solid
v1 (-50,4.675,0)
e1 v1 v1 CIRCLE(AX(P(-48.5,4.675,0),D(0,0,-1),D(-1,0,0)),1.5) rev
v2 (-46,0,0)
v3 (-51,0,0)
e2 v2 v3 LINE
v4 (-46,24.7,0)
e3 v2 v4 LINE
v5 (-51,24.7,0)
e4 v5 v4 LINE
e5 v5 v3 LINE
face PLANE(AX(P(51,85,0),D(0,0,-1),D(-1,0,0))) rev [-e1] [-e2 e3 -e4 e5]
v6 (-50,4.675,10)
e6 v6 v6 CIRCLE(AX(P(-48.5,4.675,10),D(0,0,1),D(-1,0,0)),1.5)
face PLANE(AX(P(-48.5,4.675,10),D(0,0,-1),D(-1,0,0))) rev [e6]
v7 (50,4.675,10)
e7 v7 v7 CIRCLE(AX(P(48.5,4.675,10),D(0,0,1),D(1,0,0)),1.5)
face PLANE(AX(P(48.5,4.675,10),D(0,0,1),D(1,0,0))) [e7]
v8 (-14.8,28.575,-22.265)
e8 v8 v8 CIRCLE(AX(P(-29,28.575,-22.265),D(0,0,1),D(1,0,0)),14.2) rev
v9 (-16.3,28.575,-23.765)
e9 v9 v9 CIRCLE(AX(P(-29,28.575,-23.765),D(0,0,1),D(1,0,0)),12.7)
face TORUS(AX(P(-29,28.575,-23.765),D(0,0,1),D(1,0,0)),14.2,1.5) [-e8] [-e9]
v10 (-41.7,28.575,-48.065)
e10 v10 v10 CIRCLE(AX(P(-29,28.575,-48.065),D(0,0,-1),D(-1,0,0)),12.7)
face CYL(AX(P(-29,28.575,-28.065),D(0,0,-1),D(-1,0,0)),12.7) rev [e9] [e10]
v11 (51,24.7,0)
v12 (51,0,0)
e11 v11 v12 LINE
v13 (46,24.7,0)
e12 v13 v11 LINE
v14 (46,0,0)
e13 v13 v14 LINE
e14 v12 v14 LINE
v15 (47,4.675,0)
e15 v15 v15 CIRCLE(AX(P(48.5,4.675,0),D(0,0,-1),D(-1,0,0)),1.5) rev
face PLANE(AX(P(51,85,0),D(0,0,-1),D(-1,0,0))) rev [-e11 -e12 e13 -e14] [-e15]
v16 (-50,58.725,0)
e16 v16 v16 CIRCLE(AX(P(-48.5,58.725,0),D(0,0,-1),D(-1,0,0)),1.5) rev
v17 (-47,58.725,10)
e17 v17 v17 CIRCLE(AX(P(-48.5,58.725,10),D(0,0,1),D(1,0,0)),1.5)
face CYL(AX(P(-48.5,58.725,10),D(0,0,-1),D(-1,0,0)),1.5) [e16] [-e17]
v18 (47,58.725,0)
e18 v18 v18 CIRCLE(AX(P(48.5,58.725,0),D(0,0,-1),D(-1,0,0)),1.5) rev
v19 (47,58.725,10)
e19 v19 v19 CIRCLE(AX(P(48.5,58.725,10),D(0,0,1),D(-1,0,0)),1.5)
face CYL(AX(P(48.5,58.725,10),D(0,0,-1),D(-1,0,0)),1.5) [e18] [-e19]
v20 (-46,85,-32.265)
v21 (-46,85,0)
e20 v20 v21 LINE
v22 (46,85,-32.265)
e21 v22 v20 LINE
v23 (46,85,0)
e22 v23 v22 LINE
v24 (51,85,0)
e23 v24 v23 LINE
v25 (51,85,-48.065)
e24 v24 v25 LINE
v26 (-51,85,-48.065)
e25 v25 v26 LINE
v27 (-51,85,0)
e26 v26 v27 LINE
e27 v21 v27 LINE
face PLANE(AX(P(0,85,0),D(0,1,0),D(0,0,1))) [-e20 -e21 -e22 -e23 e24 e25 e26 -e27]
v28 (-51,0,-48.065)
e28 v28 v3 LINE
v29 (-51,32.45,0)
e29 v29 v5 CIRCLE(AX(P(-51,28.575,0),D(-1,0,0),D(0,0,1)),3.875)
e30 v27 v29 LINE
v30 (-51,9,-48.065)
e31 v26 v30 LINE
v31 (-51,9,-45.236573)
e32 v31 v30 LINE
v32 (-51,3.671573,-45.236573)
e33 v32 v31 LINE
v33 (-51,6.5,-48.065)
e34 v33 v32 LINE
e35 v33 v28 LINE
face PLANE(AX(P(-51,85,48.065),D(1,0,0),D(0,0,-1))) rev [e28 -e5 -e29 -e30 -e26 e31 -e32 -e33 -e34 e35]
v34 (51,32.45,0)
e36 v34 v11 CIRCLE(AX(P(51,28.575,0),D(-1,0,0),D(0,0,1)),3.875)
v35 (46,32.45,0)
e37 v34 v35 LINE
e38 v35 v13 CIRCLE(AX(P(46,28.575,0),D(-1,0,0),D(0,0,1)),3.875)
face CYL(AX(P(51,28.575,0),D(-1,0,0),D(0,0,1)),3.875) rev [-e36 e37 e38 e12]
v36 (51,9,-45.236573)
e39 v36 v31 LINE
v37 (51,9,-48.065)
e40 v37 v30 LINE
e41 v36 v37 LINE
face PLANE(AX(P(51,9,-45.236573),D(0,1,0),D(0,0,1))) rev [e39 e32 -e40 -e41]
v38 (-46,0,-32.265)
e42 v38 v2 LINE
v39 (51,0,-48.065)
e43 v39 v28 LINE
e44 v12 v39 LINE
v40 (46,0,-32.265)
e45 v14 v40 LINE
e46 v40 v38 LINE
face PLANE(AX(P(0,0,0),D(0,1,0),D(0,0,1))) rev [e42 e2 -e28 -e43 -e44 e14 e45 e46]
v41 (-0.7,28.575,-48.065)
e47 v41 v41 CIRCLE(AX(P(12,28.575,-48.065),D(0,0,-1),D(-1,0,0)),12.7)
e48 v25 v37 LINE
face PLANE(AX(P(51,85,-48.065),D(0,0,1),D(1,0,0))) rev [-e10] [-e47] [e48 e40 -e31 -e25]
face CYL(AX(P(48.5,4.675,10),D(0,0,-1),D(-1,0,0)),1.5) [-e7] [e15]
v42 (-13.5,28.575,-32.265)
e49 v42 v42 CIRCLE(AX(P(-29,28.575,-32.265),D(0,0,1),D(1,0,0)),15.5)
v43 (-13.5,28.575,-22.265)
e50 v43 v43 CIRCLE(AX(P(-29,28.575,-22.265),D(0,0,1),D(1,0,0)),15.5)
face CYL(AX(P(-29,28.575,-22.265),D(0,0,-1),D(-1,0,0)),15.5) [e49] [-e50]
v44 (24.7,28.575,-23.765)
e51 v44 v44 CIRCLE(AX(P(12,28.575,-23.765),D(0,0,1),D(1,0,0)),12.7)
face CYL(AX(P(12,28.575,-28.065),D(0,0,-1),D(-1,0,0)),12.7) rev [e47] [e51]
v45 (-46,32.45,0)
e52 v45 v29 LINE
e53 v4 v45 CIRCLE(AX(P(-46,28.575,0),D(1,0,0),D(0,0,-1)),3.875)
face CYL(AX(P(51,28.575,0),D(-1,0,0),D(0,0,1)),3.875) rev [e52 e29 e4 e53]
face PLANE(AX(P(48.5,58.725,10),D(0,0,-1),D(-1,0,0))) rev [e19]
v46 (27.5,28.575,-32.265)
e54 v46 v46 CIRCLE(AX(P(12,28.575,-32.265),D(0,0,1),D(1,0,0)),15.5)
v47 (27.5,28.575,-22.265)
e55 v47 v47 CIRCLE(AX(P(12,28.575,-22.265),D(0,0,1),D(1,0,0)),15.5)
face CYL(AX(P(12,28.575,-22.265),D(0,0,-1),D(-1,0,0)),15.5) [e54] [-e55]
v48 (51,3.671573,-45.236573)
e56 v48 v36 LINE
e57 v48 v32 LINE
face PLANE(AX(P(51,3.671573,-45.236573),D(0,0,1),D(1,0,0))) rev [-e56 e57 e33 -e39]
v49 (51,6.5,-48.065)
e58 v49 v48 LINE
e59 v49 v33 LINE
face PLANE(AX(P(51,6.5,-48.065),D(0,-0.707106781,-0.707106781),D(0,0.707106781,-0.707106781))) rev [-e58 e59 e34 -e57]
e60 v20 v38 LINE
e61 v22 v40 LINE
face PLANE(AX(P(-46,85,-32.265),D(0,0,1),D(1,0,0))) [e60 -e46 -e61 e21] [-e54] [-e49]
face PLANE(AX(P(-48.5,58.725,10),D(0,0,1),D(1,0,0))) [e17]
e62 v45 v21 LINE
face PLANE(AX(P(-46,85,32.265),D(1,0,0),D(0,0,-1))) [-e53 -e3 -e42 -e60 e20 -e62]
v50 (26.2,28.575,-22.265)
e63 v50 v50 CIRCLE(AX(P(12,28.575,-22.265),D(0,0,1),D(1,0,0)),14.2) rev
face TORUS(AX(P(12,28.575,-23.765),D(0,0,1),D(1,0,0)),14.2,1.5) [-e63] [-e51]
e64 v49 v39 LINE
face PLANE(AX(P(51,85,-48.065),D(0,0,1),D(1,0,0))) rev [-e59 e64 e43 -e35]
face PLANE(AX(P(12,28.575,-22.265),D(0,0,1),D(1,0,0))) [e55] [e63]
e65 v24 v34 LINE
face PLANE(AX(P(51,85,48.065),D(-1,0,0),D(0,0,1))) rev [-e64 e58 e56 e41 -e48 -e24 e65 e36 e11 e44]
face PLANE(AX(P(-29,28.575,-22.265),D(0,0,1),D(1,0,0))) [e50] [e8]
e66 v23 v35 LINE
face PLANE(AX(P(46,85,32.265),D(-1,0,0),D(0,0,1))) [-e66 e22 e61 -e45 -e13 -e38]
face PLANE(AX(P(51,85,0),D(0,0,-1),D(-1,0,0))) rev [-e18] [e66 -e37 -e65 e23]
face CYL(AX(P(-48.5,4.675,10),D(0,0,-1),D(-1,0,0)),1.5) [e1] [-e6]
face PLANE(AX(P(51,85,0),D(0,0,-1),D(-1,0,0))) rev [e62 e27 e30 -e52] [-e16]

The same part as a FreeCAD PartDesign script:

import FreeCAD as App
import Part
import Sketcher

V = App.Vector
Q = App.Units.Quantity


def edges_at(feature, points):
    """Names of the edges that pass closest to the given points."""
    edges = feature.Shape.Edges
    near = lambda p: min(range(len(edges)), key=lambda i: edges[i].distToShape(Part.Vertex(*p))[0])
    return sorted({f"Edge{near(p) + 1}" for p in points})


def add_polygon(sketch, points):
    """Adds a closed chain of lines whose ends are joined by coincident constraints."""
    first, n = sketch.GeometryCount, len(points)
    for a, b in zip(points, points[1:] + points[:1]):
        sketch.addGeometry(Part.LineSegment(App.Vector(*a, 0), App.Vector(*b, 0)), False)
    for i in range(n):
        sketch.addConstraint(Sketcher.Constraint("Coincident", first + i, 2, first + (i + 1) % n, 1))

doc = App.newDocument("Part")
params = doc.addObject("Spreadsheet::Sheet", "Params")
for row, (alias, value) in enumerate([
    ("sketch1_width", "102 mm"),
    ("sketch1_width2", "92 mm"),
    ("sketch1_height", "96.13 mm"),
    ("sketch1_height2", "64.53 mm"),
    ("pad1_length", "85 mm"),
    ("sketch2_diameter", "20.5 mm"),
    ("pocket1_length", "20 mm"),
    ("sketch3_diameter", "25.4 mm"),
    ("pocket2_length", "20 mm"),
    ("sketch4_diameter", "7.75 mm"),
    ("sketch5_width", "85 mm"),
    ("sketch6_diameter", "3 mm"),
    ("pad2_length", "10 mm"),
    ("sketch7_diameter", "31 mm"),
    ("sketch7_diameter2", "25.4 mm"),
    ("pad3_length", "10 mm"),
    ("fillet_radius", "1.5 mm"),
    ("sketch8_length", "4 mm"),
    ("sketch8_width", "2.5 mm"),
], start=1):
    params.set(f"A{row}", alias)
    params.set(f"B{row}", "=" + value)
    params.setAlias(f"B{row}", alias)

body = doc.addObject("PartDesign::Body", "Body")

# Sketch on XZ plane
sketch1 = doc.addObject("Sketcher::SketchObject", "Sketch")
body.addObject(sketch1)
sketch1.AttachmentSupport = (doc.XZ_Plane, [""])
sketch1.MapMode = "FlatFace"
add_polygon(sketch1, [(-51, -48.065), (-51, 48.065), (51, 48.065), (51, -48.065)])  # lines 0-3
add_polygon(sketch1, [(46, 32.265), (-46, 32.265), (-46, -32.265), (46, -32.265)])  # lines 4-7
sketch1.addConstraint(Sketcher.Constraint("Vertical", 0))
sketch1.addConstraint(Sketcher.Constraint("Horizontal", 1))
sketch1.addConstraint(Sketcher.Constraint("Vertical", 2))
sketch1.addConstraint(Sketcher.Constraint("Horizontal", 3))
sketch1.addConstraint(Sketcher.Constraint("Horizontal", 4))
sketch1.addConstraint(Sketcher.Constraint("Vertical", 5))
sketch1.addConstraint(Sketcher.Constraint("Horizontal", 6))
sketch1.addConstraint(Sketcher.Constraint("Vertical", 7))
sketch1.addConstraint(Sketcher.Constraint("Symmetric", 0, 2, 2, 2, -1, 1))
sketch1.addConstraint(Sketcher.Constraint("Symmetric", 4, 2, 6, 2, -1, 1))
sketch1.addConstraint(Sketcher.Constraint("DistanceX", 1, 1, 1, 2, 102.0))
sketch1.addConstraint(Sketcher.Constraint("DistanceX", 4, 2, 4, 1, 92.0))
sketch1.addConstraint(Sketcher.Constraint("DistanceY", 0, 1, 0, 2, 96.13))
sketch1.addConstraint(Sketcher.Constraint("DistanceY", 5, 2, 5, 1, 64.53))
sketch1.setExpression("Constraints[18]", "Params.sketch1_width")
sketch1.setExpression("Constraints[19]", "Params.sketch1_width2")
sketch1.setExpression("Constraints[20]", "Params.sketch1_height")
sketch1.setExpression("Constraints[21]", "Params.sketch1_height2")
pad1 = doc.addObject("PartDesign::Pad", "Pad")
body.addObject(pad1)
pad1.Profile = sketch1
pad1.setExpression("Length", "Params.pad1_length")
pad1.Reversed = True

# Sketch on XY plane
sketch2 = doc.addObject("Sketcher::SketchObject", "Sketch001")
body.addObject(sketch2)
sketch2.AttachmentSupport = (doc.XY_Plane, [""])
sketch2.MapMode = "FlatFace"
sketch2.AttachmentOffset = App.Placement(V(0, 0, 48.065), App.Rotation())
sketch2.addGeometry(Part.Circle(V(-31, 31.7, 0), V(0, 0, 1), 10.25), False)
sketch2.addGeometry(Part.Circle(V(29, 31.7, 0), V(0, 0, 1), 10.25), False)
sketch2.addConstraint(Sketcher.Constraint("Equal", 0, 1))
sketch2.addConstraint(Sketcher.Constraint("Horizontal", 0, 3, 1, 3))
sketch2.addConstraint(Sketcher.Constraint("Diameter", 0, 20.5))
sketch2.addConstraint(Sketcher.Constraint("DistanceX", 0, 3, -1, 1, 31.0))
sketch2.addConstraint(Sketcher.Constraint("DistanceX", -1, 1, 1, 3, 29.0))
sketch2.addConstraint(Sketcher.Constraint("DistanceY", -1, 1, 0, 3, 31.7))
sketch2.setExpression("Constraints[2]", "Params.sketch2_diameter")
pocket1 = doc.addObject("PartDesign::Pocket", "Pocket")
body.addObject(pocket1)
pocket1.Profile = sketch2
pocket1.setExpression("Length", "Params.pocket1_length")

# Sketch on XY plane
sketch3 = doc.addObject("Sketcher::SketchObject", "Sketch002")
body.addObject(sketch3)
sketch3.AttachmentSupport = (doc.XY_Plane, [""])
sketch3.MapMode = "FlatFace"
sketch3.AttachmentOffset = App.Placement(V(0, 0, -48.065), App.Rotation())
sketch3.addGeometry(Part.Circle(V(12, 28.575, 0), V(0, 0, 1), 12.7), False)
sketch3.addGeometry(Part.Circle(V(-29, 28.575, 0), V(0, 0, 1), 12.7), False)
sketch3.addConstraint(Sketcher.Constraint("Equal", 0, 1))
sketch3.addConstraint(Sketcher.Constraint("Horizontal", 0, 3, 1, 3))
sketch3.addConstraint(Sketcher.Constraint("Diameter", 0, 25.4))
sketch3.addConstraint(Sketcher.Constraint("DistanceX", -1, 1, 0, 3, 12.0))
sketch3.addConstraint(Sketcher.Constraint("DistanceX", 1, 3, -1, 1, 29.0))
sketch3.addConstraint(Sketcher.Constraint("DistanceY", -1, 1, 0, 3, 28.575))
sketch3.setExpression("Constraints[2]", "Params.sketch3_diameter")
pocket2 = doc.addObject("PartDesign::Pocket", "Pocket001")
body.addObject(pocket2)
pocket2.Profile = sketch3
pocket2.setExpression("Length", "Params.pocket2_length")
pocket2.Reversed = True

# Sketch on YZ plane
sketch4 = doc.addObject("Sketcher::SketchObject", "Sketch003")
body.addObject(sketch4)
sketch4.AttachmentSupport = (doc.YZ_Plane, [""])
sketch4.MapMode = "FlatFace"
sketch4.AttachmentOffset = App.Placement(V(0, 0, -51), App.Rotation())
sketch4.addGeometry(Part.Circle(V(28.575, 0, 0), V(0, 0, 1), 3.875), False)
sketch4.addConstraint(Sketcher.Constraint("PointOnObject", 0, 3, -1))
sketch4.addConstraint(Sketcher.Constraint("Diameter", 0, 7.75))
sketch4.addConstraint(Sketcher.Constraint("DistanceX", -1, 1, 0, 3, 28.575))
sketch4.setExpression("Constraints[1]", "Params.sketch4_diameter")
pocket3 = doc.addObject("PartDesign::Pocket", "Pocket002")
body.addObject(pocket3)
pocket3.Profile = sketch4
pocket3.Type = "ThroughAll"
pocket3.Reversed = True

# Sketch on YZ plane
sketch5 = doc.addObject("Sketcher::SketchObject", "Sketch004")
body.addObject(sketch5)
sketch5.AttachmentSupport = (doc.YZ_Plane, [""])
sketch5.MapMode = "FlatFace"
sketch5.AttachmentOffset = App.Placement(V(0, 0, -51), App.Rotation())
add_polygon(sketch5, [(85, 0), (0, 0), (0, 48.065), (85, 48.065)])  # lines 0-3
sketch5.addConstraint(Sketcher.Constraint("Horizontal", 0))
sketch5.addConstraint(Sketcher.Constraint("Vertical", 1))
sketch5.addConstraint(Sketcher.Constraint("Horizontal", 2))
sketch5.addConstraint(Sketcher.Constraint("Vertical", 3))
sketch5.addConstraint(Sketcher.Constraint("Coincident", 0, 2, -1, 1))
sketch5.addConstraint(Sketcher.Constraint("DistanceX", 0, 2, 0, 1, 85.0))
sketch5.addConstraint(Sketcher.Constraint("DistanceY", 1, 1, 1, 2, 48.065))
sketch5.setExpression("Constraints[9]", "Params.sketch5_width")
pocket4 = doc.addObject("PartDesign::Pocket", "Pocket003")
body.addObject(pocket4)
pocket4.Profile = sketch5
pocket4.Type = "ThroughAll"
pocket4.Reversed = True

# Sketch on XY plane
sketch6 = doc.addObject("Sketcher::SketchObject", "Sketch005")
body.addObject(sketch6)
sketch6.AttachmentSupport = (doc.XY_Plane, [""])
sketch6.MapMode = "FlatFace"
sketch6.addGeometry(Part.Circle(V(-48.5, 58.725, 0), V(0, 0, 1), 1.5), False)
sketch6.addGeometry(Part.Circle(V(-48.5, 4.675, 0), V(0, 0, 1), 1.5), False)
sketch6.addGeometry(Part.Circle(V(48.5, 4.675, 0), V(0, 0, 1), 1.5), False)
sketch6.addGeometry(Part.Circle(V(48.5, 58.725, 0), V(0, 0, 1), 1.5), False)
sketch6.addConstraint(Sketcher.Constraint("Equal", 0, 1))
sketch6.addConstraint(Sketcher.Constraint("Equal", 1, 2))
sketch6.addConstraint(Sketcher.Constraint("Equal", 2, 3))
sketch6.addConstraint(Sketcher.Constraint("Symmetric", 1, 3, 2, 3, -2))
sketch6.addConstraint(Sketcher.Constraint("Symmetric", 0, 3, 3, 3, -2))
sketch6.addConstraint(Sketcher.Constraint("Vertical", 0, 3, 1, 3))
sketch6.addConstraint(Sketcher.Constraint("Diameter", 0, 3.0))
sketch6.addConstraint(Sketcher.Constraint("DistanceX", 1, 3, 2, 3, 97.0))
sketch6.addConstraint(Sketcher.Constraint("DistanceY", 1, 3, 0, 3, 54.05))
sketch6.addConstraint(Sketcher.Constraint("DistanceY", -1, 1, 0, 3, 58.725))
sketch6.setExpression("Constraints[6]", "Params.sketch6_diameter")
pad2 = doc.addObject("PartDesign::Pad", "Pad001")
body.addObject(pad2)
pad2.Profile = sketch6
pad2.setExpression("Length", "Params.pad2_length")

# Sketch on XY plane
sketch7 = doc.addObject("Sketcher::SketchObject", "Sketch006")
body.addObject(sketch7)
sketch7.AttachmentSupport = (doc.XY_Plane, [""])
sketch7.MapMode = "FlatFace"
sketch7.AttachmentOffset = App.Placement(V(0, 0, -32.265), App.Rotation())
sketch7.addGeometry(Part.Circle(V(12, 28.575, 0), V(0, 0, 1), 15.5), False)
sketch7.addGeometry(Part.Circle(V(12, 28.575, 0), V(0, 0, 1), 12.7), False)
sketch7.addGeometry(Part.Circle(V(-29, 28.575, 0), V(0, 0, 1), 15.5), False)
sketch7.addGeometry(Part.Circle(V(-29, 28.575, 0), V(0, 0, 1), 12.7), False)
sketch7.addConstraint(Sketcher.Constraint("Coincident", 1, 3, 0, 3))
sketch7.addConstraint(Sketcher.Constraint("Coincident", 3, 3, 2, 3))
sketch7.addConstraint(Sketcher.Constraint("Equal", 0, 2))
sketch7.addConstraint(Sketcher.Constraint("Equal", 1, 3))
sketch7.addConstraint(Sketcher.Constraint("Horizontal", 1, 3, 2, 3))
sketch7.addConstraint(Sketcher.Constraint("Diameter", 0, 31.0))
sketch7.addConstraint(Sketcher.Constraint("Diameter", 1, 25.4))
sketch7.addConstraint(Sketcher.Constraint("DistanceX", -1, 1, 0, 3, 12.0))
sketch7.addConstraint(Sketcher.Constraint("DistanceX", 2, 3, -1, 1, 29.0))
sketch7.addConstraint(Sketcher.Constraint("DistanceY", -1, 1, 0, 3, 28.575))
sketch7.setExpression("Constraints[5]", "Params.sketch7_diameter")
sketch7.setExpression("Constraints[6]", "Params.sketch7_diameter2")
pad3 = doc.addObject("PartDesign::Pad", "Pad002")
body.addObject(pad3)
pad3.Profile = sketch7
pad3.setExpression("Length", "Params.pad3_length")
doc.recompute()

fillet = doc.addObject("PartDesign::Fillet", "Fillet")
body.addObject(fillet)
fillet.Base = (pad3, edges_at(pad3, [(24.7, 28.575, -22.265), (-16.3, 28.575, -22.265)]))
fillet.setExpression("Radius", "Params.fillet_radius")

# Sketch on YZ plane
sketch8 = doc.addObject("Sketcher::SketchObject", "Sketch007")
body.addObject(sketch8)
sketch8.AttachmentSupport = (doc.YZ_Plane, [""])
sketch8.MapMode = "FlatFace"
sketch8.AttachmentOffset = App.Placement(V(0, 0, -51), App.Rotation())
add_polygon(sketch8, [(6.5, -48.065), (3.671573, -45.236573), (9, -45.236573), (9, -48.065)])  # lines 0-3
sketch8.addConstraint(Sketcher.Constraint("Horizontal", 1))
sketch8.addConstraint(Sketcher.Constraint("Vertical", 2))
sketch8.addConstraint(Sketcher.Constraint("Horizontal", 3))
sketch8.addConstraint(Sketcher.Constraint("Angle", 0, Q("135 deg")))
sketch8.addConstraint(Sketcher.Constraint("Distance", 0, 4.0))
sketch8.addConstraint(Sketcher.Constraint("DistanceX", 3, 2, 3, 1, 2.5))
sketch8.addConstraint(Sketcher.Constraint("DistanceX", -1, 1, 1, 2, 9.0))
sketch8.addConstraint(Sketcher.Constraint("DistanceY", 2, 2, -1, 1, 48.065))
sketch8.setExpression("Constraints[8]", "Params.sketch8_length")
sketch8.setExpression("Constraints[9]", "Params.sketch8_width")
pocket5 = doc.addObject("PartDesign::Pocket", "Pocket004")
body.addObject(pocket5)
pocket5.Profile = sketch8
pocket5.Type = "ThroughAll"
pocket5.Reversed = True

doc.recompute()
